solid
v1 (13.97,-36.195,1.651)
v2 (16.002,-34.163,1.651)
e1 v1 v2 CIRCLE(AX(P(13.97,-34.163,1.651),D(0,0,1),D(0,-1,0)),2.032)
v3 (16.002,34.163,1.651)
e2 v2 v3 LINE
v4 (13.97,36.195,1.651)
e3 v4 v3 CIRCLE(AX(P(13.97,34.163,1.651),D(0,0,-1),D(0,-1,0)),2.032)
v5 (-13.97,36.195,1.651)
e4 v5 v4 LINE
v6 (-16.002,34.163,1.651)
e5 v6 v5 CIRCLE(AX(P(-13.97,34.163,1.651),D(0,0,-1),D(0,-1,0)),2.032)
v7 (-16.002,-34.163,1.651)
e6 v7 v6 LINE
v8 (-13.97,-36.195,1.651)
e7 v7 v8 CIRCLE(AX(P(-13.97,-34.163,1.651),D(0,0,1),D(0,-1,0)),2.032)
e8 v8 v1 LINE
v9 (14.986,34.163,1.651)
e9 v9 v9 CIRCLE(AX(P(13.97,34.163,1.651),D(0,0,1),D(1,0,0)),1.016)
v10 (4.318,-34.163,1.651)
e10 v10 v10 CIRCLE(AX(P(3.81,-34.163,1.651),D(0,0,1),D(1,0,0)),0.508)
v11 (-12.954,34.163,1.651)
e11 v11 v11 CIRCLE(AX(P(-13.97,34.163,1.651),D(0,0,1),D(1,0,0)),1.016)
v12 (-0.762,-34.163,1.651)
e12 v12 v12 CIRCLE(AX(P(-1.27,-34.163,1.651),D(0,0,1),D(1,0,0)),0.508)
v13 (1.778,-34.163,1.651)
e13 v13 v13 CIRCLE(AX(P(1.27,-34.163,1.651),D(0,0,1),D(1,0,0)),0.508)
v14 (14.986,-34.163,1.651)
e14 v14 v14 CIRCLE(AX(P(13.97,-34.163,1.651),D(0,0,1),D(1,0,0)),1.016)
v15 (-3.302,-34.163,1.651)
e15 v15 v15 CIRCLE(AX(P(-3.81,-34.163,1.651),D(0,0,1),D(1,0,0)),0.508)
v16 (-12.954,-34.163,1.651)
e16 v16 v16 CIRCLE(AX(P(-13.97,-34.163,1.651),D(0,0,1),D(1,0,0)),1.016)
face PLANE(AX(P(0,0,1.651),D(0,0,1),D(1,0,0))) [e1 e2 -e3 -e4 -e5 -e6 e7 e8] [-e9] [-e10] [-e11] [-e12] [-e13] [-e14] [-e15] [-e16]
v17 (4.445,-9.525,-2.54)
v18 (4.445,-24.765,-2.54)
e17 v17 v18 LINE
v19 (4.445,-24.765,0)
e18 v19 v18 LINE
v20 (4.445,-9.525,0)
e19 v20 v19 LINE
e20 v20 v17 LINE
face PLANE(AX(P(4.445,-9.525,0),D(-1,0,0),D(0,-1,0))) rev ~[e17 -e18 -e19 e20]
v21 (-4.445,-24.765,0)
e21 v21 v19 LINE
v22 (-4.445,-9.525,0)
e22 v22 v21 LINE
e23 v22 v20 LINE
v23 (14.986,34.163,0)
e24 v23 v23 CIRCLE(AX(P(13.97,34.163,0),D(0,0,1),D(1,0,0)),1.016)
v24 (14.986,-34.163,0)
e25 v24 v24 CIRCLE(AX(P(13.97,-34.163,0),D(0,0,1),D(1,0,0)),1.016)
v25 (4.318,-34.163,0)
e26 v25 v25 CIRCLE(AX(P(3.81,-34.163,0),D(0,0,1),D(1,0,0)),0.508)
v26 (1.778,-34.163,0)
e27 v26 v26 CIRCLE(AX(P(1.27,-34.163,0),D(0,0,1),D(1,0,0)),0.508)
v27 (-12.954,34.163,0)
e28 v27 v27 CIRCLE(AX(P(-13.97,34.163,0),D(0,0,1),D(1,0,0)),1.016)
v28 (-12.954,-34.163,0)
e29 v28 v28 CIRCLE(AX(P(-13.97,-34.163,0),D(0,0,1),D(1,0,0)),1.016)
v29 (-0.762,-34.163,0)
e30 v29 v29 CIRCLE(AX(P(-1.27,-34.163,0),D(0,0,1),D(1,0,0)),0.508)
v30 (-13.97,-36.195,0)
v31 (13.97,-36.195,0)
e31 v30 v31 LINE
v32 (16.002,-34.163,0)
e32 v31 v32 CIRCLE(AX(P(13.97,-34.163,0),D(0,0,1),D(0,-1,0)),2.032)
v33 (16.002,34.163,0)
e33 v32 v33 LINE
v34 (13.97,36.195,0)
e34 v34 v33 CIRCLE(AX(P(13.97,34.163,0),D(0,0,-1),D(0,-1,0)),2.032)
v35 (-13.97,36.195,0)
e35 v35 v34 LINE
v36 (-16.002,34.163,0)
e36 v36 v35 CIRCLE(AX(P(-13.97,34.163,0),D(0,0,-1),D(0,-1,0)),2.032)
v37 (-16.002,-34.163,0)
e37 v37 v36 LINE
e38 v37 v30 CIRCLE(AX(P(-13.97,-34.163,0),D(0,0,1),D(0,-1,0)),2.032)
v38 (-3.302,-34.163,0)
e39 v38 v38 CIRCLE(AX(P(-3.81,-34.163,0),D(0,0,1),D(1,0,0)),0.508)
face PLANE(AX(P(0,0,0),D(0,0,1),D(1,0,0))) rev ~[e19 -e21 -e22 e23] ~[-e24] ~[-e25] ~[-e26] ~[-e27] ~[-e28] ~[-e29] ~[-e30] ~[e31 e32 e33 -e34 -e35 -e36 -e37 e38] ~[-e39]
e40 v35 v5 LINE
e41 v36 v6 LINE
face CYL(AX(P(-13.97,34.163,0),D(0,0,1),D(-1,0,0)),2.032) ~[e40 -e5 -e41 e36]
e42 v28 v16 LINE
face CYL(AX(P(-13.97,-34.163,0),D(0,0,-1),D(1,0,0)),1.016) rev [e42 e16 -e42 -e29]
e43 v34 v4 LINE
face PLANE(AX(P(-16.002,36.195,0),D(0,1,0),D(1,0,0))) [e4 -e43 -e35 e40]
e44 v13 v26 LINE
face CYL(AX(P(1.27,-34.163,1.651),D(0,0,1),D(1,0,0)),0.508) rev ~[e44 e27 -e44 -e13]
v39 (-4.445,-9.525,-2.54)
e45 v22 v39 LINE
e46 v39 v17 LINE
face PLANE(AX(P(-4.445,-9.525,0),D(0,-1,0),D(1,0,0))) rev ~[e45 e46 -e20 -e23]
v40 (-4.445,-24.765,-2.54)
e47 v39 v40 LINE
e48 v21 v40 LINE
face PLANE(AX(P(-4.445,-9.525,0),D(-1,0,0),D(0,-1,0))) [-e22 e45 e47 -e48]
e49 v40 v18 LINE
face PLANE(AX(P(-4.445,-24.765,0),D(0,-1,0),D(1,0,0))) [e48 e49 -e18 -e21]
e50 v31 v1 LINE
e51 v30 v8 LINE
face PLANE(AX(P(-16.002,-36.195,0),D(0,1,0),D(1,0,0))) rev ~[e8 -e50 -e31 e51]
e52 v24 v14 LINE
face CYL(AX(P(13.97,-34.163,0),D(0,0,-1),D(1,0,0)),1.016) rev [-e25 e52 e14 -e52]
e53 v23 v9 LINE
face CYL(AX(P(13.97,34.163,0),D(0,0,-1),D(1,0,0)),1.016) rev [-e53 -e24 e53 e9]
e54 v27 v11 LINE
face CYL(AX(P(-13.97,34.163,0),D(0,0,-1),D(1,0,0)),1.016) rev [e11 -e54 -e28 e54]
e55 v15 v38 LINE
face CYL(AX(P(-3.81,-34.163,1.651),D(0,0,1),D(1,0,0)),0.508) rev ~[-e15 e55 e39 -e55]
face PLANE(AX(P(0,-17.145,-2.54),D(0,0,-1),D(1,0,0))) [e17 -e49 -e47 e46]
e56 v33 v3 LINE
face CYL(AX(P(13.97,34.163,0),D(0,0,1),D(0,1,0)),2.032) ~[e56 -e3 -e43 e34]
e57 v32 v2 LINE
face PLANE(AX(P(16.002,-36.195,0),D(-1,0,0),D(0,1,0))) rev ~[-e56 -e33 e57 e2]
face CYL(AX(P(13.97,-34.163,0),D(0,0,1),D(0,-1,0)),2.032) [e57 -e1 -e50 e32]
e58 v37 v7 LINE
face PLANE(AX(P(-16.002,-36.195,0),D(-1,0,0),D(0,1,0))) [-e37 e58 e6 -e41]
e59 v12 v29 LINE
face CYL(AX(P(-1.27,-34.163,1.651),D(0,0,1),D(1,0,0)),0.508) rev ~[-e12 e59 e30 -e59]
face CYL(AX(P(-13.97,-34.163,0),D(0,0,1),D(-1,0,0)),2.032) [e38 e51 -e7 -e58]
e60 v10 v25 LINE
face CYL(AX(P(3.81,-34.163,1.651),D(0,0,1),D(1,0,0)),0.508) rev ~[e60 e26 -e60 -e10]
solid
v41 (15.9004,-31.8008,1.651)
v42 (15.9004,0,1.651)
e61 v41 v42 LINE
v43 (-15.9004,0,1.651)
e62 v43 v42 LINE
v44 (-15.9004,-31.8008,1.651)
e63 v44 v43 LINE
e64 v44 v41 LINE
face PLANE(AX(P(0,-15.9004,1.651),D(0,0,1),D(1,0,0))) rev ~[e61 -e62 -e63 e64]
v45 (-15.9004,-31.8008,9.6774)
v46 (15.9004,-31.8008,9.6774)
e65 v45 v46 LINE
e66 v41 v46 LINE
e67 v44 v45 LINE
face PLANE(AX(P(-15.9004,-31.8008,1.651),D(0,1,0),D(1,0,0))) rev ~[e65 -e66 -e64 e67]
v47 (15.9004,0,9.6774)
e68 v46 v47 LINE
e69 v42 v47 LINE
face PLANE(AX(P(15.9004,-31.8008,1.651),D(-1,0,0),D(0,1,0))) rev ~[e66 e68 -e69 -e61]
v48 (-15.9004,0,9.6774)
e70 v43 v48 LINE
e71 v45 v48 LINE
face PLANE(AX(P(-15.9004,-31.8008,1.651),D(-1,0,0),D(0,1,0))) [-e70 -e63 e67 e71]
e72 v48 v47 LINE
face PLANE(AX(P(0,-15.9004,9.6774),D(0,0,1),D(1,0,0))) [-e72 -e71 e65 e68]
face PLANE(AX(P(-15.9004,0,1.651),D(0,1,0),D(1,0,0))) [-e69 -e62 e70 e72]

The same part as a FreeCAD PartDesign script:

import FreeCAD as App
import Part
import Sketcher
from FreeCAD import Vector
Q = App.Units.Quantity


def edges_at(feature, points):
    """Names of the edges that pass closest to the given points."""
    edges = feature.Shape.Edges
    near = lambda p: min(range(len(edges)), key=lambda i: edges[i].distToShape(Part.Vertex(*p))[0])
    return sorted({f"Edge{near(p) + 1}" for p in points})

doc = App.newDocument("Part")
params = doc.addObject("Spreadsheet::Sheet", "Params")
for row, (alias, value) in enumerate([
    ("sketch1_diameter", "0.08 in"),
    ("sketch1_width", "1.26 in"),
    ("sketch1_height", "2.85 in"),
    ("pad1_length", "0.065 in"),
    ("fillet_radius", "0.08 in"),
    ("sketch2_diameter", "0.04 in"),
    ("sketch3_height", "0.6 in"),
    ("sketch3_width", "0.35 in"),
    ("pad2_length", "0.1 in"),
    ("sketch4_width", "1.252 in"),
    ("pad3_length", "0.316 in"),
], start=1):
    params.set(f"A{row}", alias)
    params.set(f"B{row}", "=" + value)
    params.setAlias(f"B{row}", alias)

body = doc.addObject("PartDesign::Body", "Body")

# Sketch on XY plane
sketch1 = doc.addObject("Sketcher::SketchObject", "Sketch")
body.addObject(sketch1)
sketch1.AttachmentSupport = (doc.XY_Plane, [""])
sketch1.MapMode = "FlatFace"
sketch1.addGeometry([
    Part.LineSegment(Vector(-16.002, 36.195, 0), Vector(-16.002, -36.195, 0)),  # 0
    Part.LineSegment(Vector(-16.002, -36.195, 0), Vector(16.002, -36.195, 0)),  # 1
    Part.LineSegment(Vector(16.002, -36.195, 0), Vector(16.002, 36.195, 0)),  # 2
    Part.LineSegment(Vector(16.002, 36.195, 0), Vector(-16.002, 36.195, 0)),  # 3
    Part.Circle(Vector(-13.97, -34.163, 0), Vector(0, 0, 1), 1.016),  # 4
    Part.Circle(Vector(13.97, -34.163, 0), Vector(0, 0, 1), 1.016),  # 5
    Part.Circle(Vector(-13.97, 34.163, 0), Vector(0, 0, 1), 1.016),  # 6
    Part.Circle(Vector(13.97, 34.163, 0), Vector(0, 0, 1), 1.016),  # 7
], False)
sketch1.addConstraint([
    Sketcher.Constraint("Coincident", 0, 2, 1, 1),
    Sketcher.Constraint("Coincident", 1, 2, 2, 1),
    Sketcher.Constraint("Coincident", 2, 2, 3, 1),
    Sketcher.Constraint("Coincident", 3, 2, 0, 1),
    Sketcher.Constraint("Vertical", 0),
    Sketcher.Constraint("Horizontal", 1),
    Sketcher.Constraint("Vertical", 2),
    Sketcher.Constraint("Horizontal", 3),
    Sketcher.Constraint("Equal", 4, 5),
    Sketcher.Constraint("Equal", 5, 6),
    Sketcher.Constraint("Equal", 6, 7),
    Sketcher.Constraint("Symmetric", 5, 3, 6, 3, -1, 1),
    Sketcher.Constraint("Symmetric", 4, 3, 7, 3, -1, 1),
    Sketcher.Constraint("Symmetric", 0, 2, 2, 2, -1, 1),
    Sketcher.Constraint("Symmetric", 4, 3, 5, 3, -2),
    Sketcher.Constraint("Diameter", 4, Q("0.08 in")),
    Sketcher.Constraint("DistanceX", 1, 1, 1, 2, Q("1.26 in")),
    Sketcher.Constraint("DistanceY", 0, 2, 0, 1, Q("2.85 in")),
    Sketcher.Constraint("DistanceX", 4, 3, 5, 3, Q("1.1 in")),
    Sketcher.Constraint("DistanceY", 4, 3, 6, 3, Q("2.69 in")),
])
sketch1.setExpression("Constraints[15]", "Params.sketch1_diameter")
sketch1.setExpression("Constraints[16]", "Params.sketch1_width")
sketch1.setExpression("Constraints[17]", "Params.sketch1_height")
pad1 = doc.addObject("PartDesign::Pad", "Pad")
body.addObject(pad1)
pad1.Profile = sketch1
pad1.setExpression("Length", "Params.pad1_length")
doc.recompute()

fillet = doc.addObject("PartDesign::Fillet", "Fillet")
body.addObject(fillet)
fillet.Base = (pad1, edges_at(pad1, [
    (16.002, -36.195, 0.826),
    (-16.002, -36.195, 0.826),
    (-16.002, 36.195, 0.826),
    (16.002, 36.195, 0.826),
]))
fillet.setExpression("Radius", "Params.fillet_radius")

# Sketch on XY plane
sketch2 = doc.addObject("Sketcher::SketchObject", "Sketch001")
body.addObject(sketch2)
sketch2.AttachmentSupport = (doc.XY_Plane, [""])
sketch2.MapMode = "FlatFace"
sketch2.AttachmentOffset = App.Placement(Vector(0, 0, 0.065 * 25.4), App.Rotation())
sketch2.addGeometry([
    Part.Circle(Vector(3.81, -34.163, 0), Vector(0, 0, 1), 0.508),
    Part.Circle(Vector(1.27, -34.163, 0), Vector(0, 0, 1), 0.508),
    Part.Circle(Vector(-1.27, -34.163, 0), Vector(0, 0, 1), 0.508),
    Part.Circle(Vector(-3.81, -34.163, 0), Vector(0, 0, 1), 0.508),
], False)
sketch2.addConstraint([
    Sketcher.Constraint("Equal", 0, 1),
    Sketcher.Constraint("Equal", 1, 2),
    Sketcher.Constraint("Equal", 2, 3),
    Sketcher.Constraint("Symmetric", 1, 3, 2, 3, -2),
    Sketcher.Constraint("Symmetric", 0, 3, 3, 3, -2),
    Sketcher.Constraint("Horizontal", 0, 3, 1, 3),
    Sketcher.Constraint("Diameter", 0, Q("0.04 in")),
    Sketcher.Constraint("DistanceX", 1, 3, 0, 3, Q("0.1 in")),
    Sketcher.Constraint("DistanceX", 2, 3, 1, 3, Q("0.1 in")),
    Sketcher.Constraint("DistanceY", 0, 3, -1, 1, Q("1.345 in")),
])
sketch2.setExpression("Constraints[6]", "Params.sketch2_diameter")
pocket1 = doc.addObject("PartDesign::Pocket", "Pocket")
body.addObject(pocket1)
pocket1.Profile = sketch2
pocket1.Type = "ThroughAll"

# Sketch on XY plane
sketch3 = doc.addObject("Sketcher::SketchObject", "Sketch002")
body.addObject(sketch3)
sketch3.AttachmentSupport = (doc.XY_Plane, [""])
sketch3.MapMode = "FlatFace"
sketch3.addGeometry([
    Part.LineSegment(Vector(-4.445, -24.765, 0), Vector(-4.445, -9.525, 0)),
    Part.LineSegment(Vector(-4.445, -9.525, 0), Vector(4.445, -9.525, 0)),
    Part.LineSegment(Vector(4.445, -9.525, 0), Vector(4.445, -24.765, 0)),
    Part.LineSegment(Vector(4.445, -24.765, 0), Vector(-4.445, -24.765, 0)),
], False)
sketch3.addConstraint([
    Sketcher.Constraint("Coincident", 0, 2, 1, 1),
    Sketcher.Constraint("Coincident", 1, 2, 2, 1),
    Sketcher.Constraint("Coincident", 2, 2, 3, 1),
    Sketcher.Constraint("Coincident", 3, 2, 0, 1),
    Sketcher.Constraint("Vertical", 0),
    Sketcher.Constraint("Horizontal", 1),
    Sketcher.Constraint("Vertical", 2),
    Sketcher.Constraint("Horizontal", 3),
    Sketcher.Constraint("DistanceY", 0, 1, 0, 2, Q("0.6 in")),
    Sketcher.Constraint("DistanceX", 1, 1, 1, 2, Q("0.35 in")),
    Sketcher.Constraint("DistanceX", 0, 2, -1, 1, Q("0.175 in")),
    Sketcher.Constraint("DistanceY", 0, 2, -1, 1, Q("0.375 in")),
])
sketch3.setExpression("Constraints[8]", "Params.sketch3_height")
sketch3.setExpression("Constraints[9]", "Params.sketch3_width")
pad2 = doc.addObject("PartDesign::Pad", "Pad001")
body.addObject(pad2)
pad2.Profile = sketch3
pad2.setExpression("Length", "Params.pad2_length")
pad2.Reversed = True
body2 = doc.addObject("PartDesign::Body", "Body001")

# Sketch on XY plane
sketch4 = doc.addObject("Sketcher::SketchObject", "Sketch003")
body2.addObject(sketch4)
sketch4.AttachmentSupport = (doc.getObject("XY_Plane001"), [""])
sketch4.MapMode = "FlatFace"
sketch4.AttachmentOffset = App.Placement(Vector(0, 0, 0.065 * 25.4), App.Rotation())
sketch4.addGeometry([
    Part.LineSegment(Vector(-15.9004, 0, 0), Vector(-15.9004, -31.8008, 0)),
    Part.LineSegment(Vector(-15.9004, -31.8008, 0), Vector(15.9004, -31.8008, 0)),
    Part.LineSegment(Vector(15.9004, -31.8008, 0), Vector(15.9004, 0, 0)),
    Part.LineSegment(Vector(15.9004, 0, 0), Vector(-15.9004, 0, 0)),
], False)
sketch4.addConstraint([
    Sketcher.Constraint("Coincident", 0, 2, 1, 1),
    Sketcher.Constraint("Coincident", 1, 2, 2, 1),
    Sketcher.Constraint("Coincident", 2, 2, 3, 1),
    Sketcher.Constraint("Coincident", 3, 2, 0, 1),
    Sketcher.Constraint("Vertical", 0),
    Sketcher.Constraint("Horizontal", 1),
    Sketcher.Constraint("Vertical", 2),
    Sketcher.Constraint("Horizontal", 3),
    Sketcher.Constraint("Symmetric", 2, 2, 3, 2, -1, 1),
    Sketcher.Constraint("Equal", 3, 0),
    Sketcher.Constraint("DistanceX", 1, 1, 1, 2, Q("1.252 in")),
])
sketch4.setExpression("Constraints[10]", "Params.sketch4_width")
pad3 = doc.addObject("PartDesign::Pad", "Pad002")
body2.addObject(pad3)
pad3.Profile = sketch4
pad3.setExpression("Length", "Params.pad3_length")

doc.recompute()
